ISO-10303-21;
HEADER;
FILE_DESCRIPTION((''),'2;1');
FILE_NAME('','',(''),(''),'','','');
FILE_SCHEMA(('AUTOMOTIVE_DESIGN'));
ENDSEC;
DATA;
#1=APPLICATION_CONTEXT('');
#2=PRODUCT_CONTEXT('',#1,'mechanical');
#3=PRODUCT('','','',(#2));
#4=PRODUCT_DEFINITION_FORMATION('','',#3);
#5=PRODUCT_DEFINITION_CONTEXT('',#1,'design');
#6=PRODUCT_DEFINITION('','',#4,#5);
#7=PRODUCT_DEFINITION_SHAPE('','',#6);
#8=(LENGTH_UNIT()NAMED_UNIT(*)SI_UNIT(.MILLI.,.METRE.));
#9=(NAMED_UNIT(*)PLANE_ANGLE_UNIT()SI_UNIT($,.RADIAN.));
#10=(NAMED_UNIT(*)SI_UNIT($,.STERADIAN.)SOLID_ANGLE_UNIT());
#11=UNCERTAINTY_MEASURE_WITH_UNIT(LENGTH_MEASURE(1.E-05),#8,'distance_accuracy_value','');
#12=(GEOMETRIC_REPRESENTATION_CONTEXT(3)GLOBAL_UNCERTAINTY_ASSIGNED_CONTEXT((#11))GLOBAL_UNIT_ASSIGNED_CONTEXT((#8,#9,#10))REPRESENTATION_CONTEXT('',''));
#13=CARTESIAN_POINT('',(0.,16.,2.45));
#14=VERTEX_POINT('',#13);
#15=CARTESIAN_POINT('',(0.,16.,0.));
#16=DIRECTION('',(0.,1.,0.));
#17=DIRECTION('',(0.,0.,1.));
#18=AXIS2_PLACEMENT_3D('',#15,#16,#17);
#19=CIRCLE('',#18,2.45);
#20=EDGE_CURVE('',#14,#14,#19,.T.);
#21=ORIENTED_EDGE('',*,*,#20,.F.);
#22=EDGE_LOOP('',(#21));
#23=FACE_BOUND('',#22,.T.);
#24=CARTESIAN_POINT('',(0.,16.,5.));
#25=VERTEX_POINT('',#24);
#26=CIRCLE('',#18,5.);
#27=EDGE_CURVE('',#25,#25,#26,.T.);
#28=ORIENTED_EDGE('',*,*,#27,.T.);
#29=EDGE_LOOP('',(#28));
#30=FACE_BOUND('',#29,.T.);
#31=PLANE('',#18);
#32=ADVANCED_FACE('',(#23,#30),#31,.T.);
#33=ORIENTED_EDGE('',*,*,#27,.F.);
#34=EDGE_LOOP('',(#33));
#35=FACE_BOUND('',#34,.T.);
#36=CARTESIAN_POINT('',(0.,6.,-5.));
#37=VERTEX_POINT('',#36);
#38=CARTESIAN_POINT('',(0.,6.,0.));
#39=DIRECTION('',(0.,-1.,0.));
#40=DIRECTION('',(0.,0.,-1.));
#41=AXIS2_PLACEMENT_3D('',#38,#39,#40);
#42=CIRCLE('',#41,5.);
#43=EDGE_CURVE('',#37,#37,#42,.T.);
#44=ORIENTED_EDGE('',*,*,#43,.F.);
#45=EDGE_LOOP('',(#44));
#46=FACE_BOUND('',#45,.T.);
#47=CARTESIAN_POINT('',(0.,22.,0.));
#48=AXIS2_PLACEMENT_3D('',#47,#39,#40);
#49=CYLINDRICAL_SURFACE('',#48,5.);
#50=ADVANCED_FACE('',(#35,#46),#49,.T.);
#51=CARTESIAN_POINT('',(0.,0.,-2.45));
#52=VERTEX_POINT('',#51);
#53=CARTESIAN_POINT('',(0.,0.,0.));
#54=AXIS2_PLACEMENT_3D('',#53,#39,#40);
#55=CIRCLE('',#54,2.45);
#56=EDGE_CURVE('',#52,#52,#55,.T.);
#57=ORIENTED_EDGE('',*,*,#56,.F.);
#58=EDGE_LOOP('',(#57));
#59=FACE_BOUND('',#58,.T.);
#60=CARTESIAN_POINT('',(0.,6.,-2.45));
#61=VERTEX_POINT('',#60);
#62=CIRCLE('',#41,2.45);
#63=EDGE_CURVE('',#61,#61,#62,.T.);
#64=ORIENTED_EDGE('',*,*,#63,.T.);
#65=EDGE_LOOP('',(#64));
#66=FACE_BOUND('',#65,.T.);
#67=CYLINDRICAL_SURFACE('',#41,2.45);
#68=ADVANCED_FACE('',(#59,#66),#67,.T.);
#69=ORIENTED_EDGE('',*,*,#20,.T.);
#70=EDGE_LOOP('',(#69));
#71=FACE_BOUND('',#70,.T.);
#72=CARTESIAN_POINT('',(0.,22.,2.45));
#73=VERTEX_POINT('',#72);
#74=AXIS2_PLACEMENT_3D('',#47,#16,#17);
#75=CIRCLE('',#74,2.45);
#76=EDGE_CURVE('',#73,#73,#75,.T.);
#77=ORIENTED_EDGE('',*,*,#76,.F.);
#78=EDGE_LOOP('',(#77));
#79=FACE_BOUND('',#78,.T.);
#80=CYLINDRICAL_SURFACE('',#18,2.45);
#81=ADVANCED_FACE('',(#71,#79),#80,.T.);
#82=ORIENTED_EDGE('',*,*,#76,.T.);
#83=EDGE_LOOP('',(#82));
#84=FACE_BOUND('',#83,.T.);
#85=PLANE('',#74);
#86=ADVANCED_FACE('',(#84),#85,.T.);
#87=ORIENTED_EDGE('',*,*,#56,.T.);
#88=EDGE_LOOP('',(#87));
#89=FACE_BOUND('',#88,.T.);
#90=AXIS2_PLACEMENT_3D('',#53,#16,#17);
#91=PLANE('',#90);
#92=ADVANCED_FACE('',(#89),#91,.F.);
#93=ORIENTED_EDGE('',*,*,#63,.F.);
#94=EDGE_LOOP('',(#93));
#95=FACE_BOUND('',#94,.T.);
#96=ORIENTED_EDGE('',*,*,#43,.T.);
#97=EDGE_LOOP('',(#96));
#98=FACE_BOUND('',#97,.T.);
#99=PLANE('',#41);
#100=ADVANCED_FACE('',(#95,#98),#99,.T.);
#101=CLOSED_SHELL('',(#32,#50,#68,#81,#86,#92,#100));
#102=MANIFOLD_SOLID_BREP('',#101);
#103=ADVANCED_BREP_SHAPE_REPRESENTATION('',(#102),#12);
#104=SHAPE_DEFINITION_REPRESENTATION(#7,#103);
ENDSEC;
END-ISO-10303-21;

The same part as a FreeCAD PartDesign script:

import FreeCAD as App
import Part
import Sketcher

V = App.Vector
Q = App.Units.Quantity

doc = App.newDocument("Part")
params = doc.addObject("Spreadsheet::Sheet", "Params")
for row, (alias, value) in enumerate([
    ("sketch1_diameter", "10 mm"),
    ("pad1_length", "22 mm"),
    ("sketch2_diameter", "10 mm"),
    ("sketch2_diameter2", "4.9 mm"),
    ("pocket1_length", "6 mm"),
    ("sketch3_diameter", "10 mm"),
    ("sketch3_diameter2", "4.9 mm"),
    ("pocket2_length", "6 mm"),
], start=1):
    params.set(f"A{row}", alias)
    params.set(f"B{row}", "=" + value)
    params.setAlias(f"B{row}", alias)

body = doc.addObject("PartDesign::Body", "Body")

# Sketch on XZ plane
sketch1 = doc.addObject("Sketcher::SketchObject", "Sketch")
body.addObject(sketch1)
sketch1.AttachmentSupport = (doc.XZ_Plane, [""])
sketch1.MapMode = "FlatFace"
sketch1.addGeometry(Part.Circle(V(0, 0, 0), V(0, 0, 1), 5), False)
sketch1.addConstraint([
    Sketcher.Constraint("Coincident", 0, 3, -1, 1),
    Sketcher.Constraint("Diameter", 0, Q("10 mm")),
])
sketch1.setExpression("Constraints[1]", "Params.sketch1_diameter")
pad1 = doc.addObject("PartDesign::Pad", "Pad")
body.addObject(pad1)
pad1.Profile = sketch1
pad1.setExpression("Length", "Params.pad1_length")
pad1.Reversed = True

# Sketch on XZ plane
sketch2 = doc.addObject("Sketcher::SketchObject", "Sketch001")
body.addObject(sketch2)
sketch2.AttachmentSupport = (doc.XZ_Plane, [""])
sketch2.MapMode = "FlatFace"
sketch2.AttachmentOffset = App.Placement(V(0, 0, -16), App.Rotation())
sketch2.addGeometry([
    Part.Circle(V(0, 0, 0), V(0, 0, 1), 5),
    Part.Circle(V(0, 0, 0), V(0, 0, 1), 2.45),
], False)
sketch2.addConstraint([
    Sketcher.Constraint("Coincident", 0, 3, -1, 1),
    Sketcher.Constraint("Coincident", 1, 3, -1, 1),
    Sketcher.Constraint("Diameter", 0, Q("10 mm")),
    Sketcher.Constraint("Diameter", 1, Q("4.9 mm")),
])
sketch2.setExpression("Constraints[2]", "Params.sketch2_diameter")
sketch2.setExpression("Constraints[3]", "Params.sketch2_diameter2")
pocket1 = doc.addObject("PartDesign::Pocket", "Pocket")
body.addObject(pocket1)
pocket1.Profile = sketch2
pocket1.setExpression("Length", "Params.pocket1_length")

# Sketch on XZ plane
sketch3 = doc.addObject("Sketcher::SketchObject", "Sketch002")
body.addObject(sketch3)
sketch3.AttachmentSupport = (doc.XZ_Plane, [""])
sketch3.MapMode = "FlatFace"
sketch3.addGeometry([
    Part.Circle(V(0, 0, 0), V(0, 0, 1), 5),
    Part.Circle(V(0, 0, 0), V(0, 0, 1), 2.45),
], False)
sketch3.addConstraint([
    Sketcher.Constraint("Coincident", 0, 3, -1, 1),
    Sketcher.Constraint("Coincident", 1, 3, -1, 1),
    Sketcher.Constraint("Diameter", 0, Q("10 mm")),
    Sketcher.Constraint("Diameter", 1, Q("4.9 mm")),
])
sketch3.setExpression("Constraints[2]", "Params.sketch3_diameter")
sketch3.setExpression("Constraints[3]", "Params.sketch3_diameter2")
pocket2 = doc.addObject("PartDesign::Pocket", "Pocket001")
body.addObject(pocket2)
pocket2.Profile = sketch3
pocket2.setExpression("Length", "Params.pocket2_length")

doc.recompute()
